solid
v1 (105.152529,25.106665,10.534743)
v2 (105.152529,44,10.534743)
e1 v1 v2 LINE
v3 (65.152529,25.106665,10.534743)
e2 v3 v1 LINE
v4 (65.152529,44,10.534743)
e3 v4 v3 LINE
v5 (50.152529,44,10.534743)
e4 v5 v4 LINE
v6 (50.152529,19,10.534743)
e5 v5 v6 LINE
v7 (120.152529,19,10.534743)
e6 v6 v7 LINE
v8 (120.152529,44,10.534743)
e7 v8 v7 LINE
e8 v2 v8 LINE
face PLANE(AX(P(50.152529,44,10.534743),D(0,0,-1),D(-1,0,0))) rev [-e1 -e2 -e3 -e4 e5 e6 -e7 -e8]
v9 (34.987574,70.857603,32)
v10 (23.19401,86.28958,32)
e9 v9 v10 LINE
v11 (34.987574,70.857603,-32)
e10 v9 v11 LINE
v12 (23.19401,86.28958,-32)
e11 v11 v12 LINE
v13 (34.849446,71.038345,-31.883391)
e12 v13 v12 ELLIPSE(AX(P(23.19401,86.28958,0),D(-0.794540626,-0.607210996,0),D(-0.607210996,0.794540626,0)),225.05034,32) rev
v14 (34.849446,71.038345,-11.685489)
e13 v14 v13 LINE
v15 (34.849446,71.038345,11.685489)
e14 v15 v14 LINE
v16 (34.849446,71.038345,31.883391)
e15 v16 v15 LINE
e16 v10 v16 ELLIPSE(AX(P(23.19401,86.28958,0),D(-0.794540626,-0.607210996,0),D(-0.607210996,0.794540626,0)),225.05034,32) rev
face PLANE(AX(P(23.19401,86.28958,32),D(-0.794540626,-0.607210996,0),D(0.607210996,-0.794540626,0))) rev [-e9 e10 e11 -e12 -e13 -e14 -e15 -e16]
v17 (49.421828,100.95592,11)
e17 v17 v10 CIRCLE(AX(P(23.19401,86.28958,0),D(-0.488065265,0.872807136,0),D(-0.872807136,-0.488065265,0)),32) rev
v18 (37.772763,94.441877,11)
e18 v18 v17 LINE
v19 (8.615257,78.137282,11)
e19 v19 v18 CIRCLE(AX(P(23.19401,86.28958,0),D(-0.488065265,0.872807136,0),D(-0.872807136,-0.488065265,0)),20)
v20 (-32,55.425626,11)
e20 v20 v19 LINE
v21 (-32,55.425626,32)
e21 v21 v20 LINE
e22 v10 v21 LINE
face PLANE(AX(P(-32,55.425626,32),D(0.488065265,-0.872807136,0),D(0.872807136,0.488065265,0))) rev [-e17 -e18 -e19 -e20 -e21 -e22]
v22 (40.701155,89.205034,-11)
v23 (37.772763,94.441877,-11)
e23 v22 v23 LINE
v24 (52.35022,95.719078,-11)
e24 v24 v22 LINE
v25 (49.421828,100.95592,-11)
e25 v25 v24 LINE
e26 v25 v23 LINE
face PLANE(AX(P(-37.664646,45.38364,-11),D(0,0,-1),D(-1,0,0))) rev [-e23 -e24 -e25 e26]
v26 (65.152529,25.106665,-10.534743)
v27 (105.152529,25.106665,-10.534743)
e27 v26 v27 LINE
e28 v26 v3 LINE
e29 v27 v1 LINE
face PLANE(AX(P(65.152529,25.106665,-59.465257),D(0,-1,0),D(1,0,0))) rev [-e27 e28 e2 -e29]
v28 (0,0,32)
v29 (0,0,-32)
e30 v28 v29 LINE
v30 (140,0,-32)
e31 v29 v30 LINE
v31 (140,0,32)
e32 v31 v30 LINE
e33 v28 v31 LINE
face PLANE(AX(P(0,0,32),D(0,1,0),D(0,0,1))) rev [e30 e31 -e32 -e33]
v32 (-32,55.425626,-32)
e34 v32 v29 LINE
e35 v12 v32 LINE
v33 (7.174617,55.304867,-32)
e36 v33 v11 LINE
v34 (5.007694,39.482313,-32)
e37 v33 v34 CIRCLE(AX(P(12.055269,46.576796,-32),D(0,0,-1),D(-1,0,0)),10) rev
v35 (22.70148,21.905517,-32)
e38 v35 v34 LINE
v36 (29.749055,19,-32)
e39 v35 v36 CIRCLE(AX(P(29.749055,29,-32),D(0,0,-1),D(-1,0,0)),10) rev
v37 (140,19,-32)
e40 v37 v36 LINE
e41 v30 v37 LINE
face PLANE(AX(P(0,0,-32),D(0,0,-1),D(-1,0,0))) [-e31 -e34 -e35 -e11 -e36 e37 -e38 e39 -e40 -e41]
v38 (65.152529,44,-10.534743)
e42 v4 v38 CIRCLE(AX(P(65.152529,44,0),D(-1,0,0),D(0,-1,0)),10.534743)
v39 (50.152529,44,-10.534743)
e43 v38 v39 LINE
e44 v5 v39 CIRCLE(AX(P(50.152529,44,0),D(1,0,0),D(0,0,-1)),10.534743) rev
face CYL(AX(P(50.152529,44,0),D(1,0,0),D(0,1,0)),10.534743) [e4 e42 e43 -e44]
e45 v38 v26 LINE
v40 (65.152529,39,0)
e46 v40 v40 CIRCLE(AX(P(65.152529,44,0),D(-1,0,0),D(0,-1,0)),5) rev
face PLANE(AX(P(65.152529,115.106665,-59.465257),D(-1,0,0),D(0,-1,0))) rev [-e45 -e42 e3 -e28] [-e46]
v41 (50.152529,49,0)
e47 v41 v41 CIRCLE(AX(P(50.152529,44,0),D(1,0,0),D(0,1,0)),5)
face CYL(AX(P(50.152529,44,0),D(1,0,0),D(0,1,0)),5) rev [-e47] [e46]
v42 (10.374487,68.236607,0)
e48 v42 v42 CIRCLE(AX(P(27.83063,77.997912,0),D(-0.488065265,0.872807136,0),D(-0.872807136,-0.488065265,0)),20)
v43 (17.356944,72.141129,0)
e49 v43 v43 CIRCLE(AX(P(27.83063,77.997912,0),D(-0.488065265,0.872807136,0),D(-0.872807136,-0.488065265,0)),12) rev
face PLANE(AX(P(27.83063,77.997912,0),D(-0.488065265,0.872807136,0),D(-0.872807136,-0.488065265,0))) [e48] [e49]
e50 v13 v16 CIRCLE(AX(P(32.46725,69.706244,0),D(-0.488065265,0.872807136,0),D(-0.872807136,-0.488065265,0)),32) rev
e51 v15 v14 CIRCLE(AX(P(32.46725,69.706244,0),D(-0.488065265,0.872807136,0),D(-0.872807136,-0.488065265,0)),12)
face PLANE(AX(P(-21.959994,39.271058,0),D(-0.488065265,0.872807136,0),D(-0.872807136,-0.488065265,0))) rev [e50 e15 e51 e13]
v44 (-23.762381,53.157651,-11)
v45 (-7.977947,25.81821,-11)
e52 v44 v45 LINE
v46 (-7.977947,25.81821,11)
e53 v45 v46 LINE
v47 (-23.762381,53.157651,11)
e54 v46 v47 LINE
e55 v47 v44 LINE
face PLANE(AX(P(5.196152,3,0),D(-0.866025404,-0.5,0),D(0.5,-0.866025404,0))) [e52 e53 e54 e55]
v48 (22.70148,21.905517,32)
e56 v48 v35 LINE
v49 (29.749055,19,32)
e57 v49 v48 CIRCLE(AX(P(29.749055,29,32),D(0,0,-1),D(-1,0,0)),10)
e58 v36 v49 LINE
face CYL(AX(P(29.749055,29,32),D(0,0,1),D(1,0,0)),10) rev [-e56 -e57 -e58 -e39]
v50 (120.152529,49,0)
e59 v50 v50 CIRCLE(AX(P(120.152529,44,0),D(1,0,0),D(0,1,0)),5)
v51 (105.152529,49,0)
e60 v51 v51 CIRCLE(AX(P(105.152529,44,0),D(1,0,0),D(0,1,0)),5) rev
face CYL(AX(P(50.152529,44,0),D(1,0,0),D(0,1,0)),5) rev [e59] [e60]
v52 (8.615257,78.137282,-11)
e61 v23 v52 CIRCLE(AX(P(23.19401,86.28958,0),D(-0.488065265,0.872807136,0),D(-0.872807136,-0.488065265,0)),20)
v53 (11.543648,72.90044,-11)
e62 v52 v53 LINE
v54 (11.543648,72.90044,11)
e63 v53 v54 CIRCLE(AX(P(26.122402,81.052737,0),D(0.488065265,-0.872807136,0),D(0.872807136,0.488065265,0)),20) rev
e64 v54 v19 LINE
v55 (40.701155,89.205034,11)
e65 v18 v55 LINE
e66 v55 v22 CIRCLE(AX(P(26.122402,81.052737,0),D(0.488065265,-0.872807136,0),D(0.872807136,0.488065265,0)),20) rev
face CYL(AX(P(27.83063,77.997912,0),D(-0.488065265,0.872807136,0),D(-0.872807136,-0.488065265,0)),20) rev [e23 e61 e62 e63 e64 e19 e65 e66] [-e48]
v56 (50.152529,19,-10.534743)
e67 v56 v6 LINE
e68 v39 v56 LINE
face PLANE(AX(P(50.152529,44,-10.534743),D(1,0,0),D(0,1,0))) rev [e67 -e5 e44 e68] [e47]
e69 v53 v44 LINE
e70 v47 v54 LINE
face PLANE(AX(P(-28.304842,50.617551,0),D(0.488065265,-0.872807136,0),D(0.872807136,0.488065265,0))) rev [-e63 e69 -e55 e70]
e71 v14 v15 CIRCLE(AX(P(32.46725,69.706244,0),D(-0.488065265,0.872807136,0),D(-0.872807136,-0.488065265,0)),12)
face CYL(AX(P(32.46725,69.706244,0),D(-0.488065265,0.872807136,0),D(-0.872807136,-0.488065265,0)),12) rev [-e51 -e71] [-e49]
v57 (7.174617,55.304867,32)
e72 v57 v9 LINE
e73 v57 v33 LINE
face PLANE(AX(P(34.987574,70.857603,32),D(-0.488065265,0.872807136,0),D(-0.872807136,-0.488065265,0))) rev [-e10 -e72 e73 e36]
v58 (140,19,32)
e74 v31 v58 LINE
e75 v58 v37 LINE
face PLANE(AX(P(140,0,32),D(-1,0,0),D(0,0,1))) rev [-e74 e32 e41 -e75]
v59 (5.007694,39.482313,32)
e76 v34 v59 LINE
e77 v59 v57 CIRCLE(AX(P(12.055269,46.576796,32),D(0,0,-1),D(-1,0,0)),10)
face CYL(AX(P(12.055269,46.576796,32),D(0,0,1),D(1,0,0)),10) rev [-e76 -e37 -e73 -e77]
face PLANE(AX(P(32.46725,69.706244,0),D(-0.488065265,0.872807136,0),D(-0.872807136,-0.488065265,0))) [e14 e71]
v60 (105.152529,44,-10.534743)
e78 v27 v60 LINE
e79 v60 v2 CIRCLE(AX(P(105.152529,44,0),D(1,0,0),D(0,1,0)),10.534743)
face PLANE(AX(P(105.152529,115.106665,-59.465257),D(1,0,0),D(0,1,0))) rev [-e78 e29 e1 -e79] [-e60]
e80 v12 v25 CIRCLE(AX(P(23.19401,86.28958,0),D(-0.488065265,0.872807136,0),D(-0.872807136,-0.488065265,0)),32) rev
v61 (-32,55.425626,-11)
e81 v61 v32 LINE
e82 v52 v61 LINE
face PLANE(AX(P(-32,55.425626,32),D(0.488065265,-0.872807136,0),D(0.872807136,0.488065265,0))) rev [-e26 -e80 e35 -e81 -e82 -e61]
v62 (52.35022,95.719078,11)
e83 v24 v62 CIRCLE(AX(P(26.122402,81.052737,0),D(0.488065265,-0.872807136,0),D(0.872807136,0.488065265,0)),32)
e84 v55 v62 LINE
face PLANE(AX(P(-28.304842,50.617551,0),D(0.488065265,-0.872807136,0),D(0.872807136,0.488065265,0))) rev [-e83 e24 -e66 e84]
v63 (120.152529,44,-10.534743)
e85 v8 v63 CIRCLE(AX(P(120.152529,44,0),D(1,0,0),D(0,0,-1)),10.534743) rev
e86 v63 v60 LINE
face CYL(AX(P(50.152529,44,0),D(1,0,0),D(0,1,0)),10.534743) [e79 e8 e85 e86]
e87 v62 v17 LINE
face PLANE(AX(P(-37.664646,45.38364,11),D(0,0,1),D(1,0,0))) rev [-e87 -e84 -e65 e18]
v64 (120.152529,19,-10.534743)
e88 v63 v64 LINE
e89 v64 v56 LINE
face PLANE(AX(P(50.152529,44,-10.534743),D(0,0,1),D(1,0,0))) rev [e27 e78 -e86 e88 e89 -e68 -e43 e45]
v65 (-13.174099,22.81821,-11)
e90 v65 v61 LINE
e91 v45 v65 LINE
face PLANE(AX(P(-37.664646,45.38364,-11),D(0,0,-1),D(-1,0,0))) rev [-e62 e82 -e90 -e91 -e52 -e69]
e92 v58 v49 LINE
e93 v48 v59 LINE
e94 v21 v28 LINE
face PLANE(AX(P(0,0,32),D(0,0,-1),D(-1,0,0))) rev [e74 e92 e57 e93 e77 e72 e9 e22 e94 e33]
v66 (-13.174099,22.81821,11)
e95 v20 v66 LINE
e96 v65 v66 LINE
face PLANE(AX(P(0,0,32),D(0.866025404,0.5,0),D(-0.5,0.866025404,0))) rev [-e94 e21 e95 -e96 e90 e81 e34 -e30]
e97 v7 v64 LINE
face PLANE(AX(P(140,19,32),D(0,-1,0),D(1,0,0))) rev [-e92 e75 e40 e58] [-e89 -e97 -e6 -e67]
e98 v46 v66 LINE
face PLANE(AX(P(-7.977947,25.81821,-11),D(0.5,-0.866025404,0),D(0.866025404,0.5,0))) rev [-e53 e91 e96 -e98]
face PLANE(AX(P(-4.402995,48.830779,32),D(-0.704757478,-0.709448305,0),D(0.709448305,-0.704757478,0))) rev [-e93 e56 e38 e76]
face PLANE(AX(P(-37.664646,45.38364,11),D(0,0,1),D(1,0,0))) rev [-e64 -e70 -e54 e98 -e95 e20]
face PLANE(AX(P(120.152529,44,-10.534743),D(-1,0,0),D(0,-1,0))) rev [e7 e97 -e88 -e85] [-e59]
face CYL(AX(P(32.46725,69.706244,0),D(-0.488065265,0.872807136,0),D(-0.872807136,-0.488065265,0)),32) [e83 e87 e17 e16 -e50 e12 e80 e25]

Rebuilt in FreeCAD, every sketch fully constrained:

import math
import FreeCAD as App
import Part
import Sketcher
from FreeCAD import Vector
Q = App.Units.Quantity


def edges_at(feature, points):
    """Names of the edges that pass closest to the given points."""
    edges = feature.Shape.Edges
    near = lambda p: min(range(len(edges)), key=lambda i: edges[i].distToShape(Part.Vertex(*p))[0])
    return sorted({f"Edge{near(p) + 1}" for p in points})

doc = App.newDocument("Part")
body = doc.addObject("PartDesign::Body", "Body")

# Sketch on XY plane
sketch1 = body.newObject("Sketcher::SketchObject", "Sketch")
sketch1.AttachmentSupport = (doc.getObject("XY_Plane"), [""])
sketch1.MapMode = "FlatFace"
sketch1.addGeometry(Part.LineSegment(Vector(0, 0, 0), Vector(140, 0, 0)), False)
sketch1.addGeometry(Part.LineSegment(Vector(140, 0, 0), Vector(140, 19, 0)), False)
sketch1.addGeometry(Part.LineSegment(Vector(140, 19, 0), Vector(25.626336, 19, 0)), False)
sketch1.addGeometry(Part.LineSegment(Vector(25.626336, 19, 0), Vector(-4.402995, 48.830779, 0)), False)
sketch1.addGeometry(Part.LineSegment(Vector(-4.402995, 48.830779, 0), Vector(34.987574, 70.857603, 0)), False)
sketch1.addGeometry(Part.LineSegment(Vector(34.987574, 70.857603, 0), Vector(23.19401, 86.28958, 0)), False)
sketch1.addGeometry(Part.LineSegment(Vector(23.19401, 86.28958, 0), Vector(-32, 55.425626, 0)), False)
sketch1.addGeometry(Part.LineSegment(Vector(-32, 55.425626, 0), Vector(0, 0, 0)), False)
sketch1.addConstraint(Sketcher.Constraint("Coincident", 0, 2, 1, 1))
sketch1.addConstraint(Sketcher.Constraint("Coincident", 1, 2, 2, 1))
sketch1.addConstraint(Sketcher.Constraint("Coincident", 2, 2, 3, 1))
sketch1.addConstraint(Sketcher.Constraint("Coincident", 3, 2, 4, 1))
sketch1.addConstraint(Sketcher.Constraint("Coincident", 4, 2, 5, 1))
sketch1.addConstraint(Sketcher.Constraint("Coincident", 5, 2, 6, 1))
sketch1.addConstraint(Sketcher.Constraint("Coincident", 6, 2, 7, 1))
sketch1.addConstraint(Sketcher.Constraint("Coincident", 7, 2, 0, 1))
sketch1.addConstraint(Sketcher.Constraint("Horizontal", 0))
sketch1.addConstraint(Sketcher.Constraint("Vertical", 1))
sketch1.addConstraint(Sketcher.Constraint("Horizontal", 2))
sketch1.addConstraint(Sketcher.Constraint("Coincident", 7, 2, -1, 1))
sketch1.addConstraint(Sketcher.Constraint("Parallel", 4, 6))
sketch1.addConstraint(Sketcher.Constraint("DistanceX", 0, 1, 0, 2, 140.0))
sketch1.addConstraint(Sketcher.Constraint("DistanceY", 1, 1, 1, 2, 19.0))
sketch1.addConstraint(Sketcher.Constraint("Angle", 7, Q("-60 deg")))
sketch1.addConstraint(Sketcher.Constraint("Distance", 7, 64.0))
sketch1.addConstraint(Sketcher.Constraint("DistanceY", 3, 2, 5, 2, 37.4588))
sketch1.addConstraint(Sketcher.Constraint("Distance", 6, 63.23735))
sketch1.addConstraint(Sketcher.Constraint("DistanceX", 2, 2, 2, 1, 114.373664))
sketch1.addConstraint(Sketcher.Constraint("DistanceY", -1, 1, 3, 2, 48.830779))
sketch1.addConstraint(Sketcher.Constraint("DistanceX", 3, 2, 2, 2, 30.029331))
sketch1.addConstraint(Sketcher.Constraint("DistanceX", 3, 2, 4, 2, 39.390569))
pad1 = body.newObject("PartDesign::Pad", "Pad")
pad1.Profile = sketch1
pad1.Length = 64
pad1.Midplane = True
doc.recompute()

fillet = body.newObject("PartDesign::Fillet", "Fillet")
fillet.Base = (pad1, edges_at(pad1, [(-4.403, 48.831, 0)]))
fillet.Radius = 10
doc.recompute()

fillet2 = body.newObject("PartDesign::Fillet", "Fillet001")
fillet2.Base = (fillet, edges_at(fillet, [(25.626, 19, 0)]))
fillet2.Radius = 10

# Sketch on an angled plane
sketch2 = body.newObject("Sketcher::SketchObject", "Sketch001")
sketch2.Placement = App.Placement(Vector(-31.233234, 55.854394, 0), App.Rotation(Vector(0.872807136, 0.488065265, 0), Vector(0, 0, -1), Vector(-0.488065265, 0.872807136, 0), "ZXY"))
sketch2.addGeometry(Part.ArcOfCircle(Part.Circle(Vector(62.358844, 0, 0), Vector(0, 0, 1), 32), math.radians(-90), math.radians(90)), False)
sketch2.addGeometry(Part.LineSegment(Vector(62.358844, 32, 0), Vector(62.358844, -32, 0)), False)
sketch2.addConstraint(Sketcher.Constraint("Coincident", 0, 1, 1, 2))
sketch2.addConstraint(Sketcher.Constraint("Coincident", 1, 1, 0, 2))
sketch2.addConstraint(Sketcher.Constraint("Vertical", 1))
sketch2.addConstraint(Sketcher.Constraint("PointOnObject", 0, 3, -1))
sketch2.addConstraint(Sketcher.Constraint("Radius", 0, 32.0))
sketch2.addConstraint(Sketcher.Constraint("DistanceX", -1, 1, 0, 3, 62.358844))
sketch2.addConstraint(Sketcher.Constraint("DistanceX", -1, 1, 0, 1, 62.358844))
pad2 = body.newObject("PartDesign::Pad", "Pad001")
pad2.Profile = sketch2
pad2.Length = 19
pad2.Reversed = True

# Sketch on an angled plane
sketch3 = body.newObject("Sketcher::SketchObject", "Sketch002")
sketch3.Placement = App.Placement(Vector(-31.233234, 55.854394, 0), App.Rotation(Vector(0.872807136, 0.488065265, 0), Vector(0, 0, -1), Vector(-0.488065265, 0.872807136, 0), "ZXY"))
sketch3.addGeometry(Part.Circle(Vector(62.358844, 0, 0), Vector(0, 0, 1), 12), False)
sketch3.addConstraint(Sketcher.Constraint("PointOnObject", 0, 3, -1))
sketch3.addConstraint(Sketcher.Constraint("Diameter", 0, 24.0))
sketch3.addConstraint(Sketcher.Constraint("DistanceX", -1, 1, 0, 3, 62.358844))
pocket1 = body.newObject("PartDesign::Pocket", "Pocket")
pocket1.Profile = sketch3
pocket1.Length = 19

# Sketch on an angled plane
sketch4 = body.newObject("Sketcher::SketchObject", "Sketch003")
sketch4.Placement = App.Placement(Vector(-31.233234, 55.854394, 0), App.Rotation(Vector(0.872807136, 0.488065265, 0), Vector(0, 0, -1), Vector(-0.488065265, 0.872807136, 0), "ZXY"))
sketch4.addGeometry(Part.Circle(Vector(62.358844, 0, 0), Vector(0, 0, 1), 20), False)
sketch4.addConstraint(Sketcher.Constraint("PointOnObject", 0, 3, -1))
sketch4.addConstraint(Sketcher.Constraint("Diameter", 0, 40.0))
sketch4.addConstraint(Sketcher.Constraint("DistanceX", -1, 1, 0, 3, 62.358844))
pocket2 = body.newObject("PartDesign::Pocket", "Pocket001")
pocket2.Profile = sketch4
pocket2.Length = 9.5

# Sketch on an angled plane
sketch5 = body.newObject("Sketcher::SketchObject", "Sketch004")
sketch5.Placement = App.Placement(Vector(-31.233234, 55.854394, 0), App.Rotation(Vector(0.872807136, 0.488065265, 0), Vector(0, 0, -1), Vector(-0.488065265, 0.872807136, 0), "ZXY"))
sketch5.addGeometry(Part.LineSegment(Vector(-10.723794, 11, 0), Vector(-10.723794, -11, 0)), False)
sketch5.addGeometry(Part.LineSegment(Vector(-10.723794, -11, 0), Vector(135.441482, -11, 0)), False)
sketch5.addGeometry(Part.LineSegment(Vector(135.441482, -11, 0), Vector(135.441482, 11, 0)), False)
sketch5.addGeometry(Part.LineSegment(Vector(135.441482, 11, 0), Vector(-10.723794, 11, 0)), False)
sketch5.addConstraint(Sketcher.Constraint("Coincident", 0, 2, 1, 1))
sketch5.addConstraint(Sketcher.Constraint("Coincident", 1, 2, 2, 1))
sketch5.addConstraint(Sketcher.Constraint("Coincident", 2, 2, 3, 1))
sketch5.addConstraint(Sketcher.Constraint("Coincident", 3, 2, 0, 1))
sketch5.addConstraint(Sketcher.Constraint("Vertical", 0))
sketch5.addConstraint(Sketcher.Constraint("Horizontal", 1))
sketch5.addConstraint(Sketcher.Constraint("Vertical", 2))
sketch5.addConstraint(Sketcher.Constraint("Horizontal", 3))
sketch5.addConstraint(Sketcher.Constraint("DistanceY", 0, 2, 0, 1, 22.0))
sketch5.addConstraint(Sketcher.Constraint("DistanceY", 0, 2, -1, 1, 11.0))
sketch5.addConstraint(Sketcher.Constraint("DistanceX", 1, 1, 1, 2, 146.165275))
sketch5.addConstraint(Sketcher.Constraint("DistanceX", -1, 1, 1, 2, 135.441482))
pocket3 = body.newObject("PartDesign::Pocket", "Pocket002")
pocket3.Profile = sketch5
pocket3.Length = 6

# Sketch on an angled plane
sketch6 = body.newObject("Sketcher::SketchObject", "Sketch005")
sketch6.Placement = App.Placement(Vector(0, 0, 0), App.Rotation(Vector(0, 0, 1), Vector(-0.5, 0.866025404, 0), Vector(-0.866025404, -0.5, 0), "ZXY"))
sketch6.addGeometry(Part.LineSegment(Vector(-11, 89.65067, 0), Vector(-11, 26.348199, 0)), False)
sketch6.addGeometry(Part.LineSegment(Vector(-11, 26.348199, 0), Vector(11, 26.348199, 0)), False)
sketch6.addGeometry(Part.LineSegment(Vector(11, 26.348199, 0), Vector(11, 89.65067, 0)), False)
sketch6.addGeometry(Part.LineSegment(Vector(11, 89.65067, 0), Vector(-11, 89.65067, 0)), False)
sketch6.addConstraint(Sketcher.Constraint("Coincident", 0, 2, 1, 1))
sketch6.addConstraint(Sketcher.Constraint("Coincident", 1, 2, 2, 1))
sketch6.addConstraint(Sketcher.Constraint("Coincident", 2, 2, 3, 1))
sketch6.addConstraint(Sketcher.Constraint("Coincident", 3, 2, 0, 1))
sketch6.addConstraint(Sketcher.Constraint("Vertical", 0))
sketch6.addConstraint(Sketcher.Constraint("Horizontal", 1))
sketch6.addConstraint(Sketcher.Constraint("Vertical", 2))
sketch6.addConstraint(Sketcher.Constraint("Horizontal", 3))
sketch6.addConstraint(Sketcher.Constraint("DistanceX", 1, 1, 1, 2, 22.0))
sketch6.addConstraint(Sketcher.Constraint("DistanceX", 0, 2, -1, 1, 11.0))
sketch6.addConstraint(Sketcher.Constraint("DistanceY", 0, 2, 0, 1, 63.302471))
sketch6.addConstraint(Sketcher.Constraint("DistanceY", -1, 1, 0, 2, 26.348199))
pocket4 = body.newObject("PartDesign::Pocket", "Pocket003")
pocket4.Profile = sketch6
pocket4.Length = 6

# Sketch on XZ plane
sketch7 = body.newObject("Sketcher::SketchObject", "Sketch006")
sketch7.AttachmentSupport = (doc.getObject("XZ_Plane"), [""])
sketch7.MapMode = "FlatFace"
sketch7.AttachmentOffset = App.Placement(Vector(0, 0, -19), App.Rotation())
sketch7.addGeometry(Part.LineSegment(Vector(50.152529, -10.534743, 0), Vector(50.152529, 10.534743, 0)), False)
sketch7.addGeometry(Part.LineSegment(Vector(50.152529, 10.534743, 0), Vector(120.152529, 10.534743, 0)), False)
sketch7.addGeometry(Part.LineSegment(Vector(120.152529, 10.534743, 0), Vector(120.152529, -10.534743, 0)), False)
sketch7.addGeometry(Part.LineSegment(Vector(120.152529, -10.534743, 0), Vector(50.152529, -10.534743, 0)), False)
sketch7.addConstraint(Sketcher.Constraint("Coincident", 0, 2, 1, 1))
sketch7.addConstraint(Sketcher.Constraint("Coincident", 1, 2, 2, 1))
sketch7.addConstraint(Sketcher.Constraint("Coincident", 2, 2, 3, 1))
sketch7.addConstraint(Sketcher.Constraint("Coincident", 3, 2, 0, 1))
sketch7.addConstraint(Sketcher.Constraint("Vertical", 0))
sketch7.addConstraint(Sketcher.Constraint("Horizontal", 1))
sketch7.addConstraint(Sketcher.Constraint("Vertical", 2))
sketch7.addConstraint(Sketcher.Constraint("Horizontal", 3))
sketch7.addConstraint(Sketcher.Constraint("DistanceX", 1, 1, 1, 2, 70.0))
sketch7.addConstraint(Sketcher.Constraint("DistanceY", 0, 1, 0, 2, 21.069485))
sketch7.addConstraint(Sketcher.Constraint("DistanceX", -1, 1, 0, 2, 50.152529))
sketch7.addConstraint(Sketcher.Constraint("DistanceY", -1, 1, 0, 2, 10.534743))
pad3 = body.newObject("PartDesign::Pad", "Pad002")
pad3.Profile = sketch7
pad3.Length = 25
pad3.Reversed = True

# Sketch on YZ plane
sketch8 = body.newObject("Sketcher::SketchObject", "Sketch007")
sketch8.AttachmentSupport = (doc.getObject("YZ_Plane"), [""])
sketch8.MapMode = "FlatFace"
sketch8.AttachmentOffset = App.Placement(Vector(0, 0, 120.152529), App.Rotation())
sketch8.addGeometry(Part.ArcOfCircle(Part.Circle(Vector(44, 0, 0), Vector(0, 0, 1), 10.534743), math.radians(-90), math.radians(90)), False)
sketch8.addGeometry(Part.LineSegment(Vector(44, 10.534743, 0), Vector(44, -10.534743, 0)), False)
sketch8.addConstraint(Sketcher.Constraint("Coincident", 0, 1, 1, 2))
sketch8.addConstraint(Sketcher.Constraint("Coincident", 1, 1, 0, 2))
sketch8.addConstraint(Sketcher.Constraint("Vertical", 1))
sketch8.addConstraint(Sketcher.Constraint("PointOnObject", 0, 3, -1))
sketch8.addConstraint(Sketcher.Constraint("DistanceX", -1, 1, 0, 3, 44.0))
sketch8.addConstraint(Sketcher.Constraint("DistanceX", -1, 1, 0, 1, 44.0))
sketch8.addConstraint(Sketcher.Constraint("Radius", 0, 10.534743))
pad4 = body.newObject("PartDesign::Pad", "Pad003")
pad4.Profile = sketch8
pad4.Length = 70
pad4.Reversed = True

# Sketch on YZ plane
sketch9 = body.newObject("Sketcher::SketchObject", "Sketch008")
sketch9.AttachmentSupport = (doc.getObject("YZ_Plane"), [""])
sketch9.MapMode = "FlatFace"
sketch9.AttachmentOffset = App.Placement(Vector(0, 0, 120.152529), App.Rotation())
sketch9.addGeometry(Part.Circle(Vector(44, 0, 0), Vector(0, 0, 1), 5), False)
sketch9.addConstraint(Sketcher.Constraint("PointOnObject", 0, 3, -1))
sketch9.addConstraint(Sketcher.Constraint("Diameter", 0, 10.0))
sketch9.addConstraint(Sketcher.Constraint("DistanceX", -1, 1, 0, 3, 44.0))
pocket5 = body.newObject("PartDesign::Pocket", "Pocket004")
pocket5.Profile = sketch9
pocket5.Length = 70

# Sketch on XY plane
sketch10 = body.newObject("Sketcher::SketchObject", "Sketch009")
sketch10.AttachmentSupport = (doc.getObject("XY_Plane"), [""])
sketch10.MapMode = "FlatFace"
sketch10.AttachmentOffset = App.Placement(Vector(0, 0, 10.534743), App.Rotation())
sketch10.addGeometry(Part.LineSegment(Vector(65.152529, 115.106665, 0), Vector(65.152529, 25.106665, 0)), False)
sketch10.addGeometry(Part.LineSegment(Vector(65.152529, 25.106665, 0), Vector(105.152529, 25.106665, 0)), False)
sketch10.addGeometry(Part.LineSegment(Vector(105.152529, 25.106665, 0), Vector(105.152529, 115.106665, 0)), False)
sketch10.addGeometry(Part.LineSegment(Vector(105.152529, 115.106665, 0), Vector(65.152529, 115.106665, 0)), False)
sketch10.addConstraint(Sketcher.Constraint("Coincident", 0, 2, 1, 1))
sketch10.addConstraint(Sketcher.Constraint("Coincident", 1, 2, 2, 1))
sketch10.addConstraint(Sketcher.Constraint("Coincident", 2, 2, 3, 1))
sketch10.addConstraint(Sketcher.Constraint("Coincident", 3, 2, 0, 1))
sketch10.addConstraint(Sketcher.Constraint("Vertical", 0))
sketch10.addConstraint(Sketcher.Constraint("Horizontal", 1))
sketch10.addConstraint(Sketcher.Constraint("Vertical", 2))
sketch10.addConstraint(Sketcher.Constraint("Horizontal", 3))
sketch10.addConstraint(Sketcher.Constraint("DistanceX", 1, 1, 1, 2, 40.0))
sketch10.addConstraint(Sketcher.Constraint("DistanceY", 0, 2, 0, 1, 90.0))
sketch10.addConstraint(Sketcher.Constraint("DistanceX", -1, 1, 0, 2, 65.152529))
sketch10.addConstraint(Sketcher.Constraint("DistanceY", -1, 1, 0, 2, 25.106665))
pocket6 = body.newObject("PartDesign::Pocket", "Pocket005")
pocket6.Profile = sketch10
pocket6.Length = 70

doc.recompute()
